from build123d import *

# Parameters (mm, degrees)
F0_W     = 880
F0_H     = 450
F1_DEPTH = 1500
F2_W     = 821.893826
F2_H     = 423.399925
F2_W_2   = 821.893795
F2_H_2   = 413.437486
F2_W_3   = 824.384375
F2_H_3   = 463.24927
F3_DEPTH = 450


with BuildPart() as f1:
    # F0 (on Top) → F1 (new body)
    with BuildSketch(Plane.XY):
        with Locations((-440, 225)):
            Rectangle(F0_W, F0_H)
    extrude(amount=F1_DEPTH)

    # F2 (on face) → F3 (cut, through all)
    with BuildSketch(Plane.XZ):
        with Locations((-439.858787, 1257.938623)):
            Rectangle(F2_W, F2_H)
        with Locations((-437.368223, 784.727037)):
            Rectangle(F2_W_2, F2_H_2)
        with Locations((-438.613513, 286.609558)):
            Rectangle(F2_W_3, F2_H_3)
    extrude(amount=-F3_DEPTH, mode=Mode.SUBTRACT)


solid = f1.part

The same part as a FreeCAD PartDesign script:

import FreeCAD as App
import Part
import Sketcher
Q = App.Units.Quantity

doc = App.newDocument("Part")
body = doc.addObject("PartDesign::Body", "Body")

# Sketch on XY plane
sketch1 = body.newObject("Sketcher::SketchObject", "Sketch")
sketch1.AttachmentSupport = (doc.getObject("XY_Plane"), [""])
sketch1.MapMode = "FlatFace"
sketch1.addGeometry(Part.LineSegment(App.Vector(-880, 450, 0), App.Vector(-880, 0, 0)), False)
sketch1.addGeometry(Part.LineSegment(App.Vector(-880, 0, 0), App.Vector(0, 0, 0)), False)
sketch1.addGeometry(Part.LineSegment(App.Vector(0, 0, 0), App.Vector(0, 450, 0)), False)
sketch1.addGeometry(Part.LineSegment(App.Vector(0, 450, 0), App.Vector(-880, 450, 0)), False)
sketch1.addConstraint(Sketcher.Constraint("Coincident", 0, 2, 1, 1))
sketch1.addConstraint(Sketcher.Constraint("Coincident", 1, 2, 2, 1))
sketch1.addConstraint(Sketcher.Constraint("Coincident", 2, 2, 3, 1))
sketch1.addConstraint(Sketcher.Constraint("Coincident", 3, 2, 0, 1))
sketch1.addConstraint(Sketcher.Constraint("Vertical", 0))
sketch1.addConstraint(Sketcher.Constraint("Horizontal", 1))
sketch1.addConstraint(Sketcher.Constraint("Vertical", 2))
sketch1.addConstraint(Sketcher.Constraint("Horizontal", 3))
sketch1.addConstraint(Sketcher.Constraint("Coincident", 1, 2, -1, 1))
sketch1.addConstraint(Sketcher.Constraint("DistanceX", 1, 1, 1, 2, Q("880 mm")))
sketch1.addConstraint(Sketcher.Constraint("DistanceY", 0, 2, 0, 1, Q("450 mm")))
pad1 = body.newObject("PartDesign::Pad", "Pad")
pad1.Profile = sketch1
pad1.Length = 1500

# Sketch on XZ plane
sketch2 = body.newObject("Sketcher::SketchObject", "Sketch001")
sketch2.AttachmentSupport = (doc.getObject("XZ_Plane"), [""])
sketch2.MapMode = "FlatFace"
sketch2.addGeometry(Part.LineSegment(App.Vector(-850.8057, 1469.638586, 0), App.Vector(-850.8057, 1046.23866, 0)), False)
sketch2.addGeometry(Part.LineSegment(App.Vector(-850.8057, 1046.23866, 0), App.Vector(-28.911874, 1046.23866, 0)), False)
sketch2.addGeometry(Part.LineSegment(App.Vector(-28.911874, 1046.23866, 0), App.Vector(-28.911874, 1469.638586, 0)), False)
sketch2.addGeometry(Part.LineSegment(App.Vector(-28.911874, 1469.638586, 0), App.Vector(-850.8057, 1469.638586, 0)), False)
sketch2.addGeometry(Part.LineSegment(App.Vector(-848.315121, 991.44578, 0), App.Vector(-848.315121, 578.008294, 0)), False)
sketch2.addGeometry(Part.LineSegment(App.Vector(-848.315121, 578.008294, 0), App.Vector(-26.421325, 578.008294, 0)), False)
sketch2.addGeometry(Part.LineSegment(App.Vector(-26.421325, 578.008294, 0), App.Vector(-26.421325, 991.44578, 0)), False)
sketch2.addGeometry(Part.LineSegment(App.Vector(-26.421325, 991.44578, 0), App.Vector(-848.315121, 991.44578, 0)), False)
sketch2.addGeometry(Part.LineSegment(App.Vector(-850.8057, 518.234193, 0), App.Vector(-850.8057, 54.984923, 0)), False)
sketch2.addGeometry(Part.LineSegment(App.Vector(-850.8057, 54.984923, 0), App.Vector(-26.421325, 54.984923, 0)), False)
sketch2.addGeometry(Part.LineSegment(App.Vector(-26.421325, 54.984923, 0), App.Vector(-26.421325, 518.234193, 0)), False)
sketch2.addGeometry(Part.LineSegment(App.Vector(-26.421325, 518.234193, 0), App.Vector(-850.8057, 518.234193, 0)), False)
sketch2.addConstraint(Sketcher.Constraint("Coincident", 0, 2, 1, 1))
sketch2.addConstraint(Sketcher.Constraint("Coincident", 1, 2, 2, 1))
sketch2.addConstraint(Sketcher.Constraint("Coincident", 2, 2, 3, 1))
sketch2.addConstraint(Sketcher.Constraint("Coincident", 3, 2, 0, 1))
sketch2.addConstraint(Sketcher.Constraint("Coincident", 4, 2, 5, 1))
sketch2.addConstraint(Sketcher.Constraint("Coincident", 5, 2, 6, 1))
sketch2.addConstraint(Sketcher.Constraint("Coincident", 6, 2, 7, 1))
sketch2.addConstraint(Sketcher.Constraint("Coincident", 7, 2, 4, 1))
sketch2.addConstraint(Sketcher.Constraint("Coincident", 8, 2, 9, 1))
sketch2.addConstraint(Sketcher.Constraint("Coincident", 9, 2, 10, 1))
sketch2.addConstraint(Sketcher.Constraint("Coincident", 10, 2, 11, 1))
sketch2.addConstraint(Sketcher.Constraint("Coincident", 11, 2, 8, 1))
sketch2.addConstraint(Sketcher.Constraint("Vertical", 0))
sketch2.addConstraint(Sketcher.Constraint("Horizontal", 1))
sketch2.addConstraint(Sketcher.Constraint("Vertical", 2))
sketch2.addConstraint(Sketcher.Constraint("Horizontal", 3))
sketch2.addConstraint(Sketcher.Constraint("Vertical", 4))
sketch2.addConstraint(Sketcher.Constraint("Horizontal", 5))
sketch2.addConstraint(Sketcher.Constraint("Vertical", 6))
sketch2.addConstraint(Sketcher.Constraint("Horizontal", 7))
sketch2.addConstraint(Sketcher.Constraint("Vertical", 8))
sketch2.addConstraint(Sketcher.Constraint("Horizontal", 9))
sketch2.addConstraint(Sketcher.Constraint("Vertical", 10))
sketch2.addConstraint(Sketcher.Constraint("Horizontal", 11))
sketch2.addConstraint(Sketcher.Constraint("Vertical", 3, 2, 8, 2))
sketch2.addConstraint(Sketcher.Constraint("Vertical", 6, 2, 9, 2))
sketch2.addConstraint(Sketcher.Constraint("DistanceY", 8, 2, 8, 1, Q("463.24927 mm")))
sketch2.addConstraint(Sketcher.Constraint("DistanceX", 0, 2, -1, 1, Q("850.8057 mm")))
sketch2.addConstraint(Sketcher.Constraint("DistanceY", 10, 2, 5, 2, Q("59.774101 mm")))
sketch2.addConstraint(Sketcher.Constraint("DistanceX", 1, 1, 1, 2, Q("821.893826 mm")))
sketch2.addConstraint(Sketcher.Constraint("DistanceX", 5, 1, 5, 2, Q("821.893795 mm")))
sketch2.addConstraint(Sketcher.Constraint("DistanceX", 9, 1, 9, 2, Q("824.384375 mm")))
sketch2.addConstraint(Sketcher.Constraint("DistanceY", 0, 2, 0, 1, Q("423.399925 mm")))
sketch2.addConstraint(Sketcher.Constraint("DistanceY", 4, 2, 4, 1, Q("413.437486 mm")))
sketch2.addConstraint(Sketcher.Constraint("DistanceY", -1, 1, 0, 2, Q("1046.23866 mm")))
sketch2.addConstraint(Sketcher.Constraint("DistanceY", -1, 1, 6, 2, Q("991.44578 mm")))
pocket1 = body.newObject("PartDesign::Pocket", "Pocket")
pocket1.Profile = sketch2
pocket1.Type = "ThroughAll"

doc.recompute()
